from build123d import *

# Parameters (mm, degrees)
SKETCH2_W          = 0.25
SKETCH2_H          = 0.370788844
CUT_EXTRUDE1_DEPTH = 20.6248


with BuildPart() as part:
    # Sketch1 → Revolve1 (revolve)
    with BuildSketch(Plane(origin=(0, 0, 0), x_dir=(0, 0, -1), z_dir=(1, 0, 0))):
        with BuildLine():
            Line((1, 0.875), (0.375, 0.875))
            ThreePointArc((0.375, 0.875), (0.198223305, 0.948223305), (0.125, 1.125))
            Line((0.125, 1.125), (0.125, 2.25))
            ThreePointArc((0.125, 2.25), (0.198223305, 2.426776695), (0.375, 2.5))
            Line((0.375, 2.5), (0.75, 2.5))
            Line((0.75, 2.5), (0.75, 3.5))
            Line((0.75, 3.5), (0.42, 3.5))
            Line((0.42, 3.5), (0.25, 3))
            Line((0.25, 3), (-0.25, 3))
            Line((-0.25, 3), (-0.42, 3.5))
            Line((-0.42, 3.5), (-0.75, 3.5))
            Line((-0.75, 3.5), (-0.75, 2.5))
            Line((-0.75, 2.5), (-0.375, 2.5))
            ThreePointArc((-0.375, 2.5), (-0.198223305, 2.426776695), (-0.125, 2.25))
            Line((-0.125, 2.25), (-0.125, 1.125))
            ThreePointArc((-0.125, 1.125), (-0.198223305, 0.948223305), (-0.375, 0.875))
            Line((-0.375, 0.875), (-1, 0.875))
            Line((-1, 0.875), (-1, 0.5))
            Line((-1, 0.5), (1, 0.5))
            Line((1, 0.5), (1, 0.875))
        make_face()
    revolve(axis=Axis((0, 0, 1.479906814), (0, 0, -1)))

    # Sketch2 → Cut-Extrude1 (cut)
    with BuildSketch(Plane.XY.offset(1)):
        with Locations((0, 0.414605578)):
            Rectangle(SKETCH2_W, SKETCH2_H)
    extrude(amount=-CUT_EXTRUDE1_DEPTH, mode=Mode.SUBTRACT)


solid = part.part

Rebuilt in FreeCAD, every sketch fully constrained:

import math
import FreeCAD as App
import Part
import Sketcher

V = App.Vector

doc = App.newDocument("Part")
body = doc.addObject("PartDesign::Body", "Body")

# Sketch on YZ plane
sketch1 = body.newObject("Sketcher::SketchObject", "Sketch")
sketch1.AttachmentSupport = (doc.getObject("YZ_Plane"), [""])
sketch1.MapMode = "FlatFace"
sketch1.addGeometry([
    Part.LineSegment(V(0.88, -1, 0), V(0.88, -0.38, 0)),  # 0
    Part.ArcOfCircle(Part.Circle(V(1.13, -0.38, 0), V(0, 0, 1), 0.25), math.radians(90), math.radians(180)),  # 1
    Part.LineSegment(V(1.12, -0.12, 0), V(2.25, -0.12, 0)),  # 2
    Part.ArcOfCircle(Part.Circle(V(2.25, -0.38, 0), V(0, 0, 1), 0.25), math.radians(0), math.radians(90)),  # 3
    Part.LineSegment(V(2.5, -0.38, 0), V(2.5, -0.75, 0)),  # 4
    Part.LineSegment(V(2.5, -0.75, 0), V(3.5, -0.75, 0)),  # 5
    Part.LineSegment(V(3.5, -0.75, 0), V(3.5, -0.42, 0)),  # 6
    Part.LineSegment(V(3.5, -0.42, 0), V(3, -0.25, 0)),  # 7
    Part.LineSegment(V(3, -0.25, 0), V(3, 0.25, 0)),  # 8
    Part.LineSegment(V(3, 0.25, 0), V(3.5, 0.42, 0)),  # 9
    Part.LineSegment(V(3.5, 0.42, 0), V(3.5, 0.75, 0)),  # 10
    Part.LineSegment(V(3.5, 0.75, 0), V(2.5, 0.75, 0)),  # 11
    Part.LineSegment(V(2.5, 0.75, 0), V(2.5, 0.38, 0)),  # 12
    Part.ArcOfCircle(Part.Circle(V(2.25, 0.38, 0), V(0, 0, 1), 0.25), math.radians(-90), math.radians(0)),  # 13
    Part.LineSegment(V(2.25, 0.12, 0), V(1.12, 0.12, 0)),  # 14
    Part.ArcOfCircle(Part.Circle(V(1.13, 0.38, 0), V(0, 0, 1), 0.25), math.radians(-180), math.radians(-90)),  # 15
    Part.LineSegment(V(0.88, 0.38, 0), V(0.88, 1, 0)),  # 16
    Part.LineSegment(V(0.88, 1, 0), V(0.5, 1, 0)),  # 17
    Part.LineSegment(V(0.5, 1, 0), V(0.5, -1, 0)),  # 18
    Part.LineSegment(V(0.5, -1, 0), V(0.88, -1, 0)),  # 19
], False)
sketch1.addConstraint([
    Sketcher.Constraint("Tangent", 0, 2, 1, 2),
    Sketcher.Constraint("Tangent", 1, 1, 2, 1),
    Sketcher.Constraint("Tangent", 2, 2, 3, 2),
    Sketcher.Constraint("Tangent", 3, 1, 4, 1),
    Sketcher.Constraint("Coincident", 4, 2, 5, 1),
    Sketcher.Constraint("Coincident", 5, 2, 6, 1),
    Sketcher.Constraint("Coincident", 6, 2, 7, 1),
    Sketcher.Constraint("Coincident", 7, 2, 8, 1),
    Sketcher.Constraint("Coincident", 8, 2, 9, 1),
    Sketcher.Constraint("Coincident", 9, 2, 10, 1),
    Sketcher.Constraint("Coincident", 10, 2, 11, 1),
    Sketcher.Constraint("Coincident", 11, 2, 12, 1),
    Sketcher.Constraint("Tangent", 12, 2, 13, 2),
    Sketcher.Constraint("Tangent", 13, 1, 14, 1),
    Sketcher.Constraint("Tangent", 14, 2, 15, 2),
    Sketcher.Constraint("Tangent", 15, 1, 16, 1),
    Sketcher.Constraint("Coincident", 16, 2, 17, 1),
    Sketcher.Constraint("Coincident", 17, 2, 18, 1),
    Sketcher.Constraint("Coincident", 18, 2, 19, 1),
    Sketcher.Constraint("Coincident", 19, 2, 0, 1),
    Sketcher.Constraint("Vertical", 0),
    Sketcher.Constraint("Horizontal", 2),
    Sketcher.Constraint("Vertical", 4),
    Sketcher.Constraint("Horizontal", 5),
    Sketcher.Constraint("Vertical", 6),
    Sketcher.Constraint("Vertical", 8),
    Sketcher.Constraint("Vertical", 10),
    Sketcher.Constraint("Horizontal", 11),
    Sketcher.Constraint("Vertical", 12),
    Sketcher.Constraint("Horizontal", 14),
    Sketcher.Constraint("Vertical", 16),
    Sketcher.Constraint("Horizontal", 17),
    Sketcher.Constraint("Vertical", 18),
    Sketcher.Constraint("Horizontal", 19),
    Sketcher.Constraint("Equal", 1, 3),
    Sketcher.Constraint("Equal", 3, 13),
    Sketcher.Constraint("Equal", 13, 15),
    Sketcher.Constraint("Symmetric", 3, 3, 13, 3, -1),
    Sketcher.Constraint("Symmetric", 6, 2, 9, 2, -1),
    Sketcher.Constraint("Symmetric", 16, 2, 19, 2, -1),
    Sketcher.Constraint("Equal", 19, 4),
    Sketcher.Constraint("Equal", 6, 10),
    Sketcher.Constraint("Equal", 7, 9),
    Sketcher.Constraint("DistanceX", 5, 1, 5, 2, 1.0),
    Sketcher.Constraint("DistanceY", 18, 2, 18, 1, 2.0),
    Sketcher.Constraint("Radius", 1, 0.25),
    Sketcher.Constraint("DistanceY", 8, 1, 8, 2, 0.5),
    Sketcher.Constraint("DistanceX", -1, 1, 7, 2, 3.0),
    Sketcher.Constraint("DistanceY", 7, 2, 10, 2, 1.0),
    Sketcher.Constraint("DistanceY", 6, 1, 6, 2, 0.33),
    Sketcher.Constraint("DistanceX", -1, 1, 3, 1, 2.5),
    Sketcher.Constraint("DistanceX", -1, 1, 17, 2, 0.5),
    Sketcher.Constraint("DistanceY", 1, 1, 15, 3, 0.5),
])
revolution = body.newObject("PartDesign::Revolution", "Revolution")
revolution.Profile = sketch1
revolution.ReferenceAxis = (sketch1, ["V_Axis"])
revolution.Angle = 360

# Sketch on XY plane
sketch2 = body.newObject("Sketcher::SketchObject", "Sketch001")
sketch2.AttachmentSupport = (doc.getObject("XY_Plane"), [""])
sketch2.MapMode = "FlatFace"
sketch2.AttachmentOffset = App.Placement(V(0, 0, 1), App.Rotation())
sketch2.addGeometry([
    Part.LineSegment(V(-0.12, 0.6, 0), V(-0.12, 0.23, 0)),
    Part.LineSegment(V(-0.12, 0.23, 0), V(0.12, 0.23, 0)),
    Part.LineSegment(V(0.12, 0.23, 0), V(0.12, 0.6, 0)),
    Part.LineSegment(V(0.12, 0.6, 0), V(-0.12, 0.6, 0)),
], False)
sketch2.addConstraint([
    Sketcher.Constraint("Coincident", 0, 2, 1, 1),
    Sketcher.Constraint("Coincident", 1, 2, 2, 1),
    Sketcher.Constraint("Coincident", 2, 2, 3, 1),
    Sketcher.Constraint("Coincident", 3, 2, 0, 1),
    Sketcher.Constraint("Vertical", 0),
    Sketcher.Constraint("Horizontal", 1),
    Sketcher.Constraint("Vertical", 2),
    Sketcher.Constraint("Horizontal", 3),
    Sketcher.Constraint("DistanceX", 1, 1, 1, 2, 0.25),
    Sketcher.Constraint("DistanceY", -1, 1, 2, 2, 0.6),
    Sketcher.Constraint("DistanceX", 0, 2, -1, 1, 0.125),
    Sketcher.Constraint("DistanceY", 0, 2, 0, 1, 0.370789),
])
pocket1 = body.newObject("PartDesign::Pocket", "Pocket")
pocket1.Profile = sketch2
pocket1.Length = 20.6248

doc.recompute()
